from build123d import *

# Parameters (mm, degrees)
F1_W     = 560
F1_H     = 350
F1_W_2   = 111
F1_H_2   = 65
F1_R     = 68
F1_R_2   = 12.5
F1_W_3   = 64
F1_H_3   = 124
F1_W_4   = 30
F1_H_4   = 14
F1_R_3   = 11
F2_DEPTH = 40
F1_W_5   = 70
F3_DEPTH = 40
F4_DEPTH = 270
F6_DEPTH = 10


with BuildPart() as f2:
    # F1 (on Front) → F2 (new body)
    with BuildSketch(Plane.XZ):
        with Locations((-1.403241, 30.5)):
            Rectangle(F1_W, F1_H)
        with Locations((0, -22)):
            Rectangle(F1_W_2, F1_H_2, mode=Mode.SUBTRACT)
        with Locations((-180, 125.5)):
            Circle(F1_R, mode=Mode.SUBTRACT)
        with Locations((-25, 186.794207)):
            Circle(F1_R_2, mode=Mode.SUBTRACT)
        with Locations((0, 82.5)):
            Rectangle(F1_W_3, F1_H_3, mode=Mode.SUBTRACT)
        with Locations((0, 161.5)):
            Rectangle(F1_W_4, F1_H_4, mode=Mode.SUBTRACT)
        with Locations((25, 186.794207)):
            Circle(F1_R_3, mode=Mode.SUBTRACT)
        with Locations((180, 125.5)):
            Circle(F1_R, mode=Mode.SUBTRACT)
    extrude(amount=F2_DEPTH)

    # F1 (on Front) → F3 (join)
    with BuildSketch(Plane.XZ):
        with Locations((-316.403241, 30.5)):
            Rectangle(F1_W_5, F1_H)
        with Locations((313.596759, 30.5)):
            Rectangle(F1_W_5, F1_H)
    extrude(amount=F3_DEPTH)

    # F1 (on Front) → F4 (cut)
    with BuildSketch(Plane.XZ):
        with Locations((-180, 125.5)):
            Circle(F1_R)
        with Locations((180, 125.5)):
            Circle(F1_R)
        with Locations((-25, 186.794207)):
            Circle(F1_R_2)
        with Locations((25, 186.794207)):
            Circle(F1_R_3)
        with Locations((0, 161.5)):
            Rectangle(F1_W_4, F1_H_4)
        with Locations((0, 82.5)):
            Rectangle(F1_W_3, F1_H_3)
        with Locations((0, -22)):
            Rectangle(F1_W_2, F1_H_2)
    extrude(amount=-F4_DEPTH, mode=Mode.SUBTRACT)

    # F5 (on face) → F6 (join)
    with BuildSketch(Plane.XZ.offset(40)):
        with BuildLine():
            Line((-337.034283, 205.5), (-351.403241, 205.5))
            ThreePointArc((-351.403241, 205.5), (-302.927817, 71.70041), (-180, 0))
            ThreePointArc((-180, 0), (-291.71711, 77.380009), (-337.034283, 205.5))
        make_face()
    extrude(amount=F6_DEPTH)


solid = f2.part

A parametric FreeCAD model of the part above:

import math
import FreeCAD as App
import Part
import Sketcher
from FreeCAD import Vector

doc = App.newDocument("Part")
params = doc.addObject("Spreadsheet::Sheet", "Params")
for row, (alias, value) in enumerate([
    ("sketch1_diameter", "136 mm"),
    ("sketch1_diameter2", "25 mm"),
    ("sketch1_diameter3", "22 mm"),
    ("sketch1_width", "560 mm"),
    ("sketch1_width2", "111 mm"),
    ("pad1_length", "40 mm"),
    ("sketch2_width", "70 mm"),
    ("sketch2_height", "350 mm"),
    ("pad2_length", "40 mm"),
    ("sketch3_diameter", "136 mm"),
    ("sketch3_diameter2", "25 mm"),
    ("sketch3_diameter3", "22 mm"),
    ("sketch3_width", "30 mm"),
    ("sketch3_width2", "64 mm"),
    ("pocket1_length", "270 mm"),
    ("sketch4_radius", "221.000001 mm"),
    ("pad3_length", "10 mm"),
], start=1):
    params.set(f"A{row}", alias)
    params.set(f"B{row}", "=" + value)
    params.setAlias(f"B{row}", alias)

body = doc.addObject("PartDesign::Body", "Body")

# Sketch on XZ plane
sketch1 = body.newObject("Sketcher::SketchObject", "Sketch")
sketch1.AttachmentSupport = (doc.getObject("XZ_Plane"), [""])
sketch1.MapMode = "FlatFace"
sketch1.addGeometry(Part.LineSegment(Vector(-281, 206, 0), Vector(-281, -144, 0)), False)
sketch1.addGeometry(Part.LineSegment(Vector(-281, -144, 0), Vector(279, -144, 0)), False)
sketch1.addGeometry(Part.LineSegment(Vector(279, -144, 0), Vector(279, 206, 0)), False)
sketch1.addGeometry(Part.LineSegment(Vector(279, 206, 0), Vector(-281, 206, 0)), False)
sketch1.addGeometry(Part.LineSegment(Vector(56, -54, 0), Vector(-56, -54, 0)), False)
sketch1.addGeometry(Part.LineSegment(Vector(-56, -54, 0), Vector(-56, 10, 0)), False)
sketch1.addGeometry(Part.LineSegment(Vector(-56, 10, 0), Vector(56, 10, 0)), False)
sketch1.addGeometry(Part.LineSegment(Vector(56, 10, 0), Vector(56, -54, 0)), False)
sketch1.addGeometry(Part.Circle(Vector(-180, 126, 0), Vector(0, 0, 1), 68), False)
sketch1.addGeometry(Part.Circle(Vector(-25, 187, 0), Vector(0, 0, 1), 12), False)
sketch1.addGeometry(Part.LineSegment(Vector(32, 20, 0), Vector(-32, 20, 0)), False)
sketch1.addGeometry(Part.LineSegment(Vector(-32, 20, 0), Vector(-32, 144, 0)), False)
sketch1.addGeometry(Part.LineSegment(Vector(-32, 144, 0), Vector(32, 144, 0)), False)
sketch1.addGeometry(Part.LineSegment(Vector(32, 144, 0), Vector(32, 20, 0)), False)
sketch1.addGeometry(Part.Circle(Vector(180, 126, 0), Vector(0, 0, 1), 68), False)
sketch1.addGeometry(Part.LineSegment(Vector(15, 154, 0), Vector(-15, 154, 0)), False)
sketch1.addGeometry(Part.LineSegment(Vector(-15, 154, 0), Vector(-15, 168, 0)), False)
sketch1.addGeometry(Part.LineSegment(Vector(-15, 168, 0), Vector(15, 168, 0)), False)
sketch1.addGeometry(Part.LineSegment(Vector(15, 168, 0), Vector(15, 154, 0)), False)
sketch1.addGeometry(Part.Circle(Vector(25, 187, 0), Vector(0, 0, 1), 11), False)
sketch1.addConstraint(Sketcher.Constraint("Coincident", 0, 2, 1, 1))
sketch1.addConstraint(Sketcher.Constraint("Coincident", 1, 2, 2, 1))
sketch1.addConstraint(Sketcher.Constraint("Coincident", 2, 2, 3, 1))
sketch1.addConstraint(Sketcher.Constraint("Coincident", 3, 2, 0, 1))
sketch1.addConstraint(Sketcher.Constraint("Coincident", 4, 2, 5, 1))
sketch1.addConstraint(Sketcher.Constraint("Coincident", 5, 2, 6, 1))
sketch1.addConstraint(Sketcher.Constraint("Coincident", 6, 2, 7, 1))
sketch1.addConstraint(Sketcher.Constraint("Coincident", 7, 2, 4, 1))
sketch1.addConstraint(Sketcher.Constraint("Coincident", 10, 2, 11, 1))
sketch1.addConstraint(Sketcher.Constraint("Coincident", 11, 2, 12, 1))
sketch1.addConstraint(Sketcher.Constraint("Coincident", 12, 2, 13, 1))
sketch1.addConstraint(Sketcher.Constraint("Coincident", 13, 2, 10, 1))
sketch1.addConstraint(Sketcher.Constraint("Coincident", 15, 2, 16, 1))
sketch1.addConstraint(Sketcher.Constraint("Coincident", 16, 2, 17, 1))
sketch1.addConstraint(Sketcher.Constraint("Coincident", 17, 2, 18, 1))
sketch1.addConstraint(Sketcher.Constraint("Coincident", 18, 2, 15, 1))
sketch1.addConstraint(Sketcher.Constraint("Vertical", 0))
sketch1.addConstraint(Sketcher.Constraint("Horizontal", 1))
sketch1.addConstraint(Sketcher.Constraint("Vertical", 2))
sketch1.addConstraint(Sketcher.Constraint("Horizontal", 3))
sketch1.addConstraint(Sketcher.Constraint("Horizontal", 4))
sketch1.addConstraint(Sketcher.Constraint("Vertical", 5))
sketch1.addConstraint(Sketcher.Constraint("Horizontal", 6))
sketch1.addConstraint(Sketcher.Constraint("Vertical", 7))
sketch1.addConstraint(Sketcher.Constraint("Horizontal", 10))
sketch1.addConstraint(Sketcher.Constraint("Vertical", 11))
sketch1.addConstraint(Sketcher.Constraint("Horizontal", 12))
sketch1.addConstraint(Sketcher.Constraint("Vertical", 13))
sketch1.addConstraint(Sketcher.Constraint("Horizontal", 15))
sketch1.addConstraint(Sketcher.Constraint("Vertical", 16))
sketch1.addConstraint(Sketcher.Constraint("Horizontal", 17))
sketch1.addConstraint(Sketcher.Constraint("Vertical", 18))
sketch1.addConstraint(Sketcher.Constraint("Equal", 8, 14))
sketch1.addConstraint(Sketcher.Constraint("Symmetric", 8, 3, 14, 3, -2))
sketch1.addConstraint(Sketcher.Constraint("Symmetric", 9, 3, 19, 3, -2))
sketch1.addConstraint(Sketcher.Constraint("Diameter", 8, 136.0))
sketch1.addConstraint(Sketcher.Constraint("Diameter", 9, 25.0))
sketch1.addConstraint(Sketcher.Constraint("Diameter", 19, 22.0))
sketch1.addConstraint(Sketcher.Constraint("DistanceX", 1, 1, 1, 2, 560.0))
sketch1.addConstraint(Sketcher.Constraint("DistanceX", 4, 2, 4, 1, 111.0))
sketch1.addConstraint(Sketcher.Constraint("DistanceX", 10, 2, 10, 1, 64.0))
sketch1.addConstraint(Sketcher.Constraint("DistanceX", 15, 2, 15, 1, 30.0))
sketch1.addConstraint(Sketcher.Constraint("DistanceY", 0, 2, 0, 1, 350.0))
sketch1.addConstraint(Sketcher.Constraint("DistanceY", 5, 1, 5, 2, 65.0))
sketch1.addConstraint(Sketcher.Constraint("DistanceY", 11, 1, 11, 2, 124.0))
sketch1.addConstraint(Sketcher.Constraint("DistanceY", 16, 1, 16, 2, 14.0))
sketch1.addConstraint(Sketcher.Constraint("DistanceX", 8, 3, -1, 1, 180.0))
sketch1.addConstraint(Sketcher.Constraint("DistanceX", 9, 3, -1, 1, 25.0))
sketch1.addConstraint(Sketcher.Constraint("DistanceX", 10, 2, -1, 1, 32.0))
sketch1.addConstraint(Sketcher.Constraint("DistanceX", 15, 2, -1, 1, 15.0))
sketch1.addConstraint(Sketcher.Constraint("DistanceY", 0, 2, 8, 3, 270.0))
sketch1.addConstraint(Sketcher.Constraint("DistanceY", 4, 2, 8, 3, 180.0))
sketch1.addConstraint(Sketcher.Constraint("DistanceY", 5, 2, 10, 2, 10.0))
sketch1.addConstraint(Sketcher.Constraint("DistanceY", 11, 2, 15, 2, 10.0))
sketch1.addConstraint(Sketcher.Constraint("DistanceY", -1, 1, 8, 3, 125.5))
sketch1.addConstraint(Sketcher.Constraint("DistanceX", 4, 2, -1, 1, 55.5))
sketch1.addConstraint(Sketcher.Constraint("DistanceX", 0, 2, -1, 1, 281.403241))
sketch1.addConstraint(Sketcher.Constraint("DistanceY", -1, 1, 9, 3, 186.794207))
sketch1.setExpression("Constraints[35]", "Params.sketch1_diameter")
sketch1.setExpression("Constraints[36]", "Params.sketch1_diameter2")
sketch1.setExpression("Constraints[37]", "Params.sketch1_diameter3")
sketch1.setExpression("Constraints[38]", "Params.sketch1_width")
sketch1.setExpression("Constraints[39]", "Params.sketch1_width2")
pad1 = body.newObject("PartDesign::Pad", "Pad")
pad1.Profile = sketch1
pad1.setExpression("Length", "Params.pad1_length")

# Sketch on XZ plane
sketch2 = body.newObject("Sketcher::SketchObject", "Sketch001")
sketch2.AttachmentSupport = (doc.getObject("XZ_Plane"), [""])
sketch2.MapMode = "FlatFace"
sketch2.addGeometry(Part.LineSegment(Vector(-351, 206, 0), Vector(-351, -144, 0)), False)
sketch2.addGeometry(Part.LineSegment(Vector(-351, -144, 0), Vector(-281, -144, 0)), False)
sketch2.addGeometry(Part.LineSegment(Vector(-281, -144, 0), Vector(-281, 206, 0)), False)
sketch2.addGeometry(Part.LineSegment(Vector(-281, 206, 0), Vector(-351, 206, 0)), False)
sketch2.addGeometry(Part.LineSegment(Vector(279, 206, 0), Vector(279, -144, 0)), False)
sketch2.addGeometry(Part.LineSegment(Vector(279, -144, 0), Vector(349, -144, 0)), False)
sketch2.addGeometry(Part.LineSegment(Vector(349, -144, 0), Vector(349, 206, 0)), False)
sketch2.addGeometry(Part.LineSegment(Vector(349, 206, 0), Vector(279, 206, 0)), False)
sketch2.addConstraint(Sketcher.Constraint("Coincident", 0, 2, 1, 1))
sketch2.addConstraint(Sketcher.Constraint("Coincident", 1, 2, 2, 1))
sketch2.addConstraint(Sketcher.Constraint("Coincident", 2, 2, 3, 1))
sketch2.addConstraint(Sketcher.Constraint("Coincident", 3, 2, 0, 1))
sketch2.addConstraint(Sketcher.Constraint("Coincident", 4, 2, 5, 1))
sketch2.addConstraint(Sketcher.Constraint("Coincident", 5, 2, 6, 1))
sketch2.addConstraint(Sketcher.Constraint("Coincident", 6, 2, 7, 1))
sketch2.addConstraint(Sketcher.Constraint("Coincident", 7, 2, 4, 1))
sketch2.addConstraint(Sketcher.Constraint("Vertical", 0))
sketch2.addConstraint(Sketcher.Constraint("Horizontal", 1))
sketch2.addConstraint(Sketcher.Constraint("Vertical", 2))
sketch2.addConstraint(Sketcher.Constraint("Horizontal", 3))
sketch2.addConstraint(Sketcher.Constraint("Vertical", 4))
sketch2.addConstraint(Sketcher.Constraint("Horizontal", 5))
sketch2.addConstraint(Sketcher.Constraint("Vertical", 6))
sketch2.addConstraint(Sketcher.Constraint("Horizontal", 7))
sketch2.addConstraint(Sketcher.Constraint("Horizontal", 1, 2, 4, 2))
sketch2.addConstraint(Sketcher.Constraint("Horizontal", 3, 2, 6, 2))
sketch2.addConstraint(Sketcher.Constraint("Equal", 3, 5))
sketch2.addConstraint(Sketcher.Constraint("DistanceX", 1, 1, 1, 2, 70.0))
sketch2.addConstraint(Sketcher.Constraint("DistanceY", 0, 2, 0, 1, 350.0))
sketch2.addConstraint(Sketcher.Constraint("DistanceX", 1, 2, 4, 2, 560.0))
sketch2.addConstraint(Sketcher.Constraint("DistanceY", 0, 2, -1, 1, 144.5))
sketch2.addConstraint(Sketcher.Constraint("DistanceX", 0, 2, -1, 1, 351.403241))
sketch2.setExpression("Constraints[19]", "Params.sketch2_width")
sketch2.setExpression("Constraints[20]", "Params.sketch2_height")
pad2 = body.newObject("PartDesign::Pad", "Pad001")
pad2.Profile = sketch2
pad2.setExpression("Length", "Params.pad2_length")

# Sketch on XZ plane
sketch3 = body.newObject("Sketcher::SketchObject", "Sketch002")
sketch3.AttachmentSupport = (doc.getObject("XZ_Plane"), [""])
sketch3.MapMode = "FlatFace"
sketch3.addGeometry(Part.Circle(Vector(-180, 126, 0), Vector(0, 0, 1), 68), False)
sketch3.addGeometry(Part.Circle(Vector(180, 126, 0), Vector(0, 0, 1), 68), False)
sketch3.addGeometry(Part.Circle(Vector(-25, 187, 0), Vector(0, 0, 1), 12), False)
sketch3.addGeometry(Part.Circle(Vector(25, 187, 0), Vector(0, 0, 1), 11), False)
sketch3.addGeometry(Part.LineSegment(Vector(-15, 168, 0), Vector(-15, 154, 0)), False)
sketch3.addGeometry(Part.LineSegment(Vector(-15, 154, 0), Vector(15, 154, 0)), False)
sketch3.addGeometry(Part.LineSegment(Vector(15, 154, 0), Vector(15, 168, 0)), False)
sketch3.addGeometry(Part.LineSegment(Vector(15, 168, 0), Vector(-15, 168, 0)), False)
sketch3.addGeometry(Part.LineSegment(Vector(-32, 144, 0), Vector(-32, 20, 0)), False)
sketch3.addGeometry(Part.LineSegment(Vector(-32, 20, 0), Vector(32, 20, 0)), False)
sketch3.addGeometry(Part.LineSegment(Vector(32, 20, 0), Vector(32, 144, 0)), False)
sketch3.addGeometry(Part.LineSegment(Vector(32, 144, 0), Vector(-32, 144, 0)), False)
sketch3.addGeometry(Part.LineSegment(Vector(-56, 10, 0), Vector(-56, -54, 0)), False)
sketch3.addGeometry(Part.LineSegment(Vector(-56, -54, 0), Vector(56, -54, 0)), False)
sketch3.addGeometry(Part.LineSegment(Vector(56, -54, 0), Vector(56, 10, 0)), False)
sketch3.addGeometry(Part.LineSegment(Vector(56, 10, 0), Vector(-56, 10, 0)), False)
sketch3.addConstraint(Sketcher.Constraint("Coincident", 4, 2, 5, 1))
sketch3.addConstraint(Sketcher.Constraint("Coincident", 5, 2, 6, 1))
sketch3.addConstraint(Sketcher.Constraint("Coincident", 6, 2, 7, 1))
sketch3.addConstraint(Sketcher.Constraint("Coincident", 7, 2, 4, 1))
sketch3.addConstraint(Sketcher.Constraint("Coincident", 8, 2, 9, 1))
sketch3.addConstraint(Sketcher.Constraint("Coincident", 9, 2, 10, 1))
sketch3.addConstraint(Sketcher.Constraint("Coincident", 10, 2, 11, 1))
sketch3.addConstraint(Sketcher.Constraint("Coincident", 11, 2, 8, 1))
sketch3.addConstraint(Sketcher.Constraint("Coincident", 12, 2, 13, 1))
sketch3.addConstraint(Sketcher.Constraint("Coincident", 13, 2, 14, 1))
sketch3.addConstraint(Sketcher.Constraint("Coincident", 14, 2, 15, 1))
sketch3.addConstraint(Sketcher.Constraint("Coincident", 15, 2, 12, 1))
sketch3.addConstraint(Sketcher.Constraint("Vertical", 4))
sketch3.addConstraint(Sketcher.Constraint("Horizontal", 5))
sketch3.addConstraint(Sketcher.Constraint("Vertical", 6))
sketch3.addConstraint(Sketcher.Constraint("Horizontal", 7))
sketch3.addConstraint(Sketcher.Constraint("Vertical", 8))
sketch3.addConstraint(Sketcher.Constraint("Horizontal", 9))
sketch3.addConstraint(Sketcher.Constraint("Vertical", 10))
sketch3.addConstraint(Sketcher.Constraint("Horizontal", 11))
sketch3.addConstraint(Sketcher.Constraint("Vertical", 12))
sketch3.addConstraint(Sketcher.Constraint("Horizontal", 13))
sketch3.addConstraint(Sketcher.Constraint("Vertical", 14))
sketch3.addConstraint(Sketcher.Constraint("Horizontal", 15))
sketch3.addConstraint(Sketcher.Constraint("Equal", 0, 1))
sketch3.addConstraint(Sketcher.Constraint("Symmetric", 0, 3, 1, 3, -2))
sketch3.addConstraint(Sketcher.Constraint("Symmetric", 2, 3, 3, 3, -2))
sketch3.addConstraint(Sketcher.Constraint("Diameter", 0, 136.0))
sketch3.addConstraint(Sketcher.Constraint("Diameter", 2, 25.0))
sketch3.addConstraint(Sketcher.Constraint("Diameter", 3, 22.0))
sketch3.addConstraint(Sketcher.Constraint("DistanceX", 5, 1, 5, 2, 30.0))
sketch3.addConstraint(Sketcher.Constraint("DistanceX", 9, 1, 9, 2, 64.0))
sketch3.addConstraint(Sketcher.Constraint("DistanceX", 13, 1, 13, 2, 111.0))
sketch3.addConstraint(Sketcher.Constraint("DistanceY", 4, 2, 4, 1, 14.0))
sketch3.addConstraint(Sketcher.Constraint("DistanceY", 8, 2, 8, 1, 124.0))
sketch3.addConstraint(Sketcher.Constraint("DistanceY", 12, 2, 12, 1, 65.0))
sketch3.addConstraint(Sketcher.Constraint("DistanceX", 0, 3, -1, 1, 180.0))
sketch3.addConstraint(Sketcher.Constraint("DistanceX", 2, 3, -1, 1, 25.0))
sketch3.addConstraint(Sketcher.Constraint("DistanceX", 4, 2, -1, 1, 15.0))
sketch3.addConstraint(Sketcher.Constraint("DistanceX", 8, 2, -1, 1, 32.0))
sketch3.addConstraint(Sketcher.Constraint("DistanceY", 0, 3, 4, 2, 29.0))
sketch3.addConstraint(Sketcher.Constraint("DistanceY", 8, 2, 4, 2, 134.0))
sketch3.addConstraint(Sketcher.Constraint("DistanceY", 12, 2, 8, 2, 75.0))
sketch3.addConstraint(Sketcher.Constraint("DistanceY", -1, 1, 0, 3, 125.5))
sketch3.addConstraint(Sketcher.Constraint("DistanceX", 12, 2, -1, 1, 55.5))
sketch3.addConstraint(Sketcher.Constraint("DistanceY", -1, 1, 2, 3, 186.794207))
sketch3.setExpression("Constraints[27]", "Params.sketch3_diameter")
sketch3.setExpression("Constraints[28]", "Params.sketch3_diameter2")
sketch3.setExpression("Constraints[29]", "Params.sketch3_diameter3")
sketch3.setExpression("Constraints[30]", "Params.sketch3_width")
sketch3.setExpression("Constraints[31]", "Params.sketch3_width2")
pocket1 = body.newObject("PartDesign::Pocket", "Pocket")
pocket1.Profile = sketch3
pocket1.setExpression("Length", "Params.pocket1_length")

# Sketch on XZ plane
sketch4 = body.newObject("Sketcher::SketchObject", "Sketch003")
sketch4.AttachmentSupport = (doc.getObject("XZ_Plane"), [""])
sketch4.MapMode = "FlatFace"
sketch4.AttachmentOffset = App.Placement(Vector(0, 0, 40), App.Rotation())
sketch4.addGeometry(Part.LineSegment(Vector(-337, 206, 0), Vector(-351, 206, 0)), False)
sketch4.addGeometry(Part.ArcOfCircle(Part.Circle(Vector(-143, 205, 0), Vector(0, 0, 1), 209), math.radians(180), math.radians(260)), False)
sketch4.addGeometry(Part.ArcOfCircle(Part.Circle(Vector(-116, 212, 0), Vector(0, 0, 1), 221), math.radians(-178), math.radians(-107)), False)
sketch4.addConstraint(Sketcher.Constraint("Coincident", 0, 2, 1, 1))
sketch4.addConstraint(Sketcher.Constraint("Coincident", 1, 2, 2, 2))
sketch4.addConstraint(Sketcher.Constraint("Coincident", 2, 1, 0, 1))
sketch4.addConstraint(Sketcher.Constraint("Horizontal", 0))
sketch4.addConstraint(Sketcher.Constraint("PointOnObject", 1, 2, -1))
sketch4.addConstraint(Sketcher.Constraint("Horizontal", 1, 3, 0, 2))
sketch4.addConstraint(Sketcher.Constraint("Radius", 2, 221.000001))
sketch4.addConstraint(Sketcher.Constraint("DistanceX", 1, 2, -1, 1, 180.0))
sketch4.addConstraint(Sketcher.Constraint("DistanceY", -1, 1, 1, 3, 205.5))
sketch4.addConstraint(Sketcher.Constraint("Radius", 1, 208.891385))
sketch4.addConstraint(Sketcher.Constraint("DistanceX", 0, 2, 0, 1, 14.368958))
sketch4.setExpression("Constraints[6]", "Params.sketch4_radius")
pad3 = body.newObject("PartDesign::Pad", "Pad002")
pad3.Profile = sketch4
pad3.setExpression("Length", "Params.pad3_length")

doc.recompute()
